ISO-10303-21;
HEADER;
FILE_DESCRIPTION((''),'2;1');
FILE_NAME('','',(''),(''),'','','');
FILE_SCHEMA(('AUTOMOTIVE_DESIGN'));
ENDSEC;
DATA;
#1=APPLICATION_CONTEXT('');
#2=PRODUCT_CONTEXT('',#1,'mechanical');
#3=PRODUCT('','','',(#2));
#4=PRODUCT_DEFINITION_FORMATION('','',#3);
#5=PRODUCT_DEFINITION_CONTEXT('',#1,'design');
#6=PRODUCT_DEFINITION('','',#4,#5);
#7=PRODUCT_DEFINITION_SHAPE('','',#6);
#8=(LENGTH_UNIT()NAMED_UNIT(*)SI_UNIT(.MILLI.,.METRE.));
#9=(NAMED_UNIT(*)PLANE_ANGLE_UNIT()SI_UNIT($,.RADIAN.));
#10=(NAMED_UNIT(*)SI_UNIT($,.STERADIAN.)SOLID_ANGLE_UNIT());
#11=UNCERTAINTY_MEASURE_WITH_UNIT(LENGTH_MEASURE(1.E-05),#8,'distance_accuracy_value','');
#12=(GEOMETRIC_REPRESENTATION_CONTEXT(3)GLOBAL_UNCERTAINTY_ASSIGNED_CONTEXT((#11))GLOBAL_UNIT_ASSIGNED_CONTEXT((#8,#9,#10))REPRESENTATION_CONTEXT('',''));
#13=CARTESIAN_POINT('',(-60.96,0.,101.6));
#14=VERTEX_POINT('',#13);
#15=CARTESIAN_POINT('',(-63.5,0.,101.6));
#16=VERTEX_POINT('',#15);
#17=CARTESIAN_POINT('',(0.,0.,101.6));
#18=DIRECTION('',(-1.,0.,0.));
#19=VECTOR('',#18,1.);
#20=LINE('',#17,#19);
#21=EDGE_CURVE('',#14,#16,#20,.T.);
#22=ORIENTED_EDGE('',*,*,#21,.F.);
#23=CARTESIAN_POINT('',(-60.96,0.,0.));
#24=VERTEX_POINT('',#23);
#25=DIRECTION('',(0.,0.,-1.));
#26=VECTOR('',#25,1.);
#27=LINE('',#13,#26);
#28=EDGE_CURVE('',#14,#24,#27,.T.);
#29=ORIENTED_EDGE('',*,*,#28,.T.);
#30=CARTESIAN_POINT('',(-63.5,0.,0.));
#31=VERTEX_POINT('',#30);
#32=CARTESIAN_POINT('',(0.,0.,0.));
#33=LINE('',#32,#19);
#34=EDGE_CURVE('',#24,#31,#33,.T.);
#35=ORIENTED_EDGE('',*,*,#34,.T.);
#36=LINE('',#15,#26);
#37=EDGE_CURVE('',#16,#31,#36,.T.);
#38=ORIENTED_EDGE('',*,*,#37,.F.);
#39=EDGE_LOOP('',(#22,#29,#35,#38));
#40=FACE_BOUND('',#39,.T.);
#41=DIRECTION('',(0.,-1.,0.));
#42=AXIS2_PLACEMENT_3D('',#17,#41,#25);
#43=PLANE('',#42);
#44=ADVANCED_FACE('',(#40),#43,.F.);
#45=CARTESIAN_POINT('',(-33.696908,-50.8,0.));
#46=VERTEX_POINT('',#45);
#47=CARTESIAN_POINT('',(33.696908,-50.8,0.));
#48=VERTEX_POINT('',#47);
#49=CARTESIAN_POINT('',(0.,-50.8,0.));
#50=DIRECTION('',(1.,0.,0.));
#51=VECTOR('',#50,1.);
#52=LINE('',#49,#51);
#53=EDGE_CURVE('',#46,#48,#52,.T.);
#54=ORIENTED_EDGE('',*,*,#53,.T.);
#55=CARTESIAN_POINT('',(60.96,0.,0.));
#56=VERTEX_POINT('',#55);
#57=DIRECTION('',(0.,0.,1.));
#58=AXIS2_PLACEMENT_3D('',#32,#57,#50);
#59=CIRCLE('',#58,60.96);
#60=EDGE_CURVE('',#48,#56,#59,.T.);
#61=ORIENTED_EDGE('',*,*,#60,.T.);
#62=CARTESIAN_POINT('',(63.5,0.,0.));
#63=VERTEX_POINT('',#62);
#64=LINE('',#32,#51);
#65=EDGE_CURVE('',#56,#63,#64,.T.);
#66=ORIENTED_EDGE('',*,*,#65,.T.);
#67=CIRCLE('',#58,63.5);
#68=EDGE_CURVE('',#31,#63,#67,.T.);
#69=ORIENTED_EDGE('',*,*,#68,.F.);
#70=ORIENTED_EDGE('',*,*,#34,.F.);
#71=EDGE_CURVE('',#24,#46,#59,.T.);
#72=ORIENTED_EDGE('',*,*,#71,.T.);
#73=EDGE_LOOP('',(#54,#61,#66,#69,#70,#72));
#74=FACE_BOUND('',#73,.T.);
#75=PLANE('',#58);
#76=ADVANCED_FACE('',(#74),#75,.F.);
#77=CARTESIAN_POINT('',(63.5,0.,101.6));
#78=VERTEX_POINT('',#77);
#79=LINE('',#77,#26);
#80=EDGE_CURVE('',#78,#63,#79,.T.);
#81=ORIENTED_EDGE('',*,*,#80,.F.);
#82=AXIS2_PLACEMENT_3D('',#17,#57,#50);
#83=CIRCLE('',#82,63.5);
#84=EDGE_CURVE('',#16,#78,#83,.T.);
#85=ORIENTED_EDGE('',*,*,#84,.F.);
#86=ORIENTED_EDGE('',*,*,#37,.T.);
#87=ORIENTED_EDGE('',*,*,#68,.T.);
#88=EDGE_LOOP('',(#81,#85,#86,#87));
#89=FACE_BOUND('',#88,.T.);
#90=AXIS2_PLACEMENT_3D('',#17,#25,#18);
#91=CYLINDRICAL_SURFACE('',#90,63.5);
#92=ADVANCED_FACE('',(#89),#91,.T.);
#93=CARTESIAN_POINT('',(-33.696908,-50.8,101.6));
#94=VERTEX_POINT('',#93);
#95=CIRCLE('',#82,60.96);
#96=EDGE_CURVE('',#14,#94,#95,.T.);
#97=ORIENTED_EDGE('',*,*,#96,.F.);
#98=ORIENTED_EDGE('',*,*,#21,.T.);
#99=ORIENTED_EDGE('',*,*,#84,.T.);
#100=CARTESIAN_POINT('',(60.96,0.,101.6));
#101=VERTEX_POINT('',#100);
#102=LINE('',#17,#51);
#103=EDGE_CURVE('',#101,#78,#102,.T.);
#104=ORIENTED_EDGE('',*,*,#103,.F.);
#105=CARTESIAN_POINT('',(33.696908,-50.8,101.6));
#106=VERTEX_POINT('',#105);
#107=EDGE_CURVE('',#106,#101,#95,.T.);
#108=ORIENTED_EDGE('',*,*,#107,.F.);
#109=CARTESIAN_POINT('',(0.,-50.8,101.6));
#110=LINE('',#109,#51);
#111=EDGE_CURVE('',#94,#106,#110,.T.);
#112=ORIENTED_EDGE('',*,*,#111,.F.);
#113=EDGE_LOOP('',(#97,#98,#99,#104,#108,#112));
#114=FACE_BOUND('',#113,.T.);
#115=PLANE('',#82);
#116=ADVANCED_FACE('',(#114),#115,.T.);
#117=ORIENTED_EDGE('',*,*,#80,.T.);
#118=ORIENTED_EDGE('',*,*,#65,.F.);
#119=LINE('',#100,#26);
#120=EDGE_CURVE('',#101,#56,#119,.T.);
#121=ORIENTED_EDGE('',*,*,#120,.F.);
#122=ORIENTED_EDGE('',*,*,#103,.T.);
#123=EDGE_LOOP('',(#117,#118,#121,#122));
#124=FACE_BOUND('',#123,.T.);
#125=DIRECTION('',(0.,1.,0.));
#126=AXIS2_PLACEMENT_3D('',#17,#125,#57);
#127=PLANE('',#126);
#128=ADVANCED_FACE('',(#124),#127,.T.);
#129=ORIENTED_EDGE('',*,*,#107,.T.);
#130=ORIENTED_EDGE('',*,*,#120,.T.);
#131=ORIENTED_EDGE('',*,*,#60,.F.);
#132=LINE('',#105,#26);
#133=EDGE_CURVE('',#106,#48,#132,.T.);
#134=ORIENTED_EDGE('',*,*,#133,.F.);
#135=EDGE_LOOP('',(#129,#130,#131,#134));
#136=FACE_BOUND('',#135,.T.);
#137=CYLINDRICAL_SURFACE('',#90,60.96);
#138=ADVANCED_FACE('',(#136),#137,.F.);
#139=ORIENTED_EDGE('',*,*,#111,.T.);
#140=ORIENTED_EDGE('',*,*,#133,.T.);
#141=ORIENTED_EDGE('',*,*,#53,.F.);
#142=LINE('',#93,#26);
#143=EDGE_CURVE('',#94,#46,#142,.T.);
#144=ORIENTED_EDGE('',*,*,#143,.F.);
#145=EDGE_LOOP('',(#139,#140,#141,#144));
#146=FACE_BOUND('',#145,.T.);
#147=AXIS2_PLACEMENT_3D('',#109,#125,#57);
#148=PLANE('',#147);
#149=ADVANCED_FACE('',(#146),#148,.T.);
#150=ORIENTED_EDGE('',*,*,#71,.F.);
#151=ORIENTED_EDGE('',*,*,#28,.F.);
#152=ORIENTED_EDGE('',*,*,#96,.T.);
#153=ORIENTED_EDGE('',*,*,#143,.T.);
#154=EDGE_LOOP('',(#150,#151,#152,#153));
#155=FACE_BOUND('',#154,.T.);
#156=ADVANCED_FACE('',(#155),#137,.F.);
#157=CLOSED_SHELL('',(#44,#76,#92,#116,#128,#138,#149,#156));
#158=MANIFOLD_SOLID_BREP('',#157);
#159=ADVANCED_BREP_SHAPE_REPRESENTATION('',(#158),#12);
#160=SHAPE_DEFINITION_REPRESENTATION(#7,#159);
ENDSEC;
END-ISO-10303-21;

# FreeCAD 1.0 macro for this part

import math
import FreeCAD as App
import Part
import Sketcher
Q = App.Units.Quantity

doc = App.newDocument("Part")
body = doc.addObject("PartDesign::Body", "Body")

sketch1 = body.newObject("Sketcher::SketchObject", "Sketch")
sketch1.AttachmentSupport = (doc.getObject("XY_Plane"), [""])
sketch1.MapMode = "FlatFace"
sketch1.addGeometry(Part.LineSegment(App.Vector(63.5, 0, 0), App.Vector(61, 0, 0)), False)
sketch1.addGeometry(Part.ArcOfCircle(Part.Circle(App.Vector(0, 0, 0), App.Vector(0, 0, 1), 61), math.radians(-56), math.radians(0)), False)
sketch1.addGeometry(Part.LineSegment(App.Vector(33.7, -50.8, 0), App.Vector(-33.7, -50.8, 0)), False)
sketch1.addGeometry(Part.ArcOfCircle(Part.Circle(App.Vector(0, 0, 0), App.Vector(0, 0, 1), 61), math.radians(180), math.radians(236)), False)
sketch1.addGeometry(Part.LineSegment(App.Vector(-61, 0, 0), App.Vector(-63.5, 0, 0)), False)
sketch1.addGeometry(Part.ArcOfCircle(Part.Circle(App.Vector(0, 0, 0), App.Vector(0, 0, 1), 63.5), math.radians(180), math.radians(360)), False)
sketch1.addConstraint(Sketcher.Constraint("Coincident", 0, 2, 1, 2))
sketch1.addConstraint(Sketcher.Constraint("Coincident", 1, 1, 2, 1))
sketch1.addConstraint(Sketcher.Constraint("Coincident", 2, 2, 3, 2))
sketch1.addConstraint(Sketcher.Constraint("Coincident", 3, 1, 4, 1))
sketch1.addConstraint(Sketcher.Constraint("Coincident", 4, 2, 5, 1))
sketch1.addConstraint(Sketcher.Constraint("Coincident", 5, 2, 0, 1))
sketch1.addConstraint(Sketcher.Constraint("Horizontal", 0))
sketch1.addConstraint(Sketcher.Constraint("Horizontal", 2))
sketch1.addConstraint(Sketcher.Constraint("Horizontal", 4))
sketch1.addConstraint(Sketcher.Constraint("Coincident", 1, 3, -1, 1))
sketch1.addConstraint(Sketcher.Constraint("Coincident", 3, 3, -1, 1))
sketch1.addConstraint(Sketcher.Constraint("Coincident", 5, 3, -1, 1))
sketch1.addConstraint(Sketcher.Constraint("Equal", 1, 3))
sketch1.addConstraint(Sketcher.Constraint("PointOnObject", 0, 2, -1))
sketch1.addConstraint(Sketcher.Constraint("PointOnObject", 3, 1, -1))
sketch1.addConstraint(Sketcher.Constraint("Radius", 1, Q("2.4 in")))
sketch1.addConstraint(Sketcher.Constraint("Radius", 5, Q("2.5 in")))
sketch1.addConstraint(Sketcher.Constraint("DistanceY", 1, 1, -1, 1, Q("2 in")))
pad1 = body.newObject("PartDesign::Pad", "Pad")
pad1.Profile = sketch1
pad1.Length = Q("4 in")

doc.recompute()
